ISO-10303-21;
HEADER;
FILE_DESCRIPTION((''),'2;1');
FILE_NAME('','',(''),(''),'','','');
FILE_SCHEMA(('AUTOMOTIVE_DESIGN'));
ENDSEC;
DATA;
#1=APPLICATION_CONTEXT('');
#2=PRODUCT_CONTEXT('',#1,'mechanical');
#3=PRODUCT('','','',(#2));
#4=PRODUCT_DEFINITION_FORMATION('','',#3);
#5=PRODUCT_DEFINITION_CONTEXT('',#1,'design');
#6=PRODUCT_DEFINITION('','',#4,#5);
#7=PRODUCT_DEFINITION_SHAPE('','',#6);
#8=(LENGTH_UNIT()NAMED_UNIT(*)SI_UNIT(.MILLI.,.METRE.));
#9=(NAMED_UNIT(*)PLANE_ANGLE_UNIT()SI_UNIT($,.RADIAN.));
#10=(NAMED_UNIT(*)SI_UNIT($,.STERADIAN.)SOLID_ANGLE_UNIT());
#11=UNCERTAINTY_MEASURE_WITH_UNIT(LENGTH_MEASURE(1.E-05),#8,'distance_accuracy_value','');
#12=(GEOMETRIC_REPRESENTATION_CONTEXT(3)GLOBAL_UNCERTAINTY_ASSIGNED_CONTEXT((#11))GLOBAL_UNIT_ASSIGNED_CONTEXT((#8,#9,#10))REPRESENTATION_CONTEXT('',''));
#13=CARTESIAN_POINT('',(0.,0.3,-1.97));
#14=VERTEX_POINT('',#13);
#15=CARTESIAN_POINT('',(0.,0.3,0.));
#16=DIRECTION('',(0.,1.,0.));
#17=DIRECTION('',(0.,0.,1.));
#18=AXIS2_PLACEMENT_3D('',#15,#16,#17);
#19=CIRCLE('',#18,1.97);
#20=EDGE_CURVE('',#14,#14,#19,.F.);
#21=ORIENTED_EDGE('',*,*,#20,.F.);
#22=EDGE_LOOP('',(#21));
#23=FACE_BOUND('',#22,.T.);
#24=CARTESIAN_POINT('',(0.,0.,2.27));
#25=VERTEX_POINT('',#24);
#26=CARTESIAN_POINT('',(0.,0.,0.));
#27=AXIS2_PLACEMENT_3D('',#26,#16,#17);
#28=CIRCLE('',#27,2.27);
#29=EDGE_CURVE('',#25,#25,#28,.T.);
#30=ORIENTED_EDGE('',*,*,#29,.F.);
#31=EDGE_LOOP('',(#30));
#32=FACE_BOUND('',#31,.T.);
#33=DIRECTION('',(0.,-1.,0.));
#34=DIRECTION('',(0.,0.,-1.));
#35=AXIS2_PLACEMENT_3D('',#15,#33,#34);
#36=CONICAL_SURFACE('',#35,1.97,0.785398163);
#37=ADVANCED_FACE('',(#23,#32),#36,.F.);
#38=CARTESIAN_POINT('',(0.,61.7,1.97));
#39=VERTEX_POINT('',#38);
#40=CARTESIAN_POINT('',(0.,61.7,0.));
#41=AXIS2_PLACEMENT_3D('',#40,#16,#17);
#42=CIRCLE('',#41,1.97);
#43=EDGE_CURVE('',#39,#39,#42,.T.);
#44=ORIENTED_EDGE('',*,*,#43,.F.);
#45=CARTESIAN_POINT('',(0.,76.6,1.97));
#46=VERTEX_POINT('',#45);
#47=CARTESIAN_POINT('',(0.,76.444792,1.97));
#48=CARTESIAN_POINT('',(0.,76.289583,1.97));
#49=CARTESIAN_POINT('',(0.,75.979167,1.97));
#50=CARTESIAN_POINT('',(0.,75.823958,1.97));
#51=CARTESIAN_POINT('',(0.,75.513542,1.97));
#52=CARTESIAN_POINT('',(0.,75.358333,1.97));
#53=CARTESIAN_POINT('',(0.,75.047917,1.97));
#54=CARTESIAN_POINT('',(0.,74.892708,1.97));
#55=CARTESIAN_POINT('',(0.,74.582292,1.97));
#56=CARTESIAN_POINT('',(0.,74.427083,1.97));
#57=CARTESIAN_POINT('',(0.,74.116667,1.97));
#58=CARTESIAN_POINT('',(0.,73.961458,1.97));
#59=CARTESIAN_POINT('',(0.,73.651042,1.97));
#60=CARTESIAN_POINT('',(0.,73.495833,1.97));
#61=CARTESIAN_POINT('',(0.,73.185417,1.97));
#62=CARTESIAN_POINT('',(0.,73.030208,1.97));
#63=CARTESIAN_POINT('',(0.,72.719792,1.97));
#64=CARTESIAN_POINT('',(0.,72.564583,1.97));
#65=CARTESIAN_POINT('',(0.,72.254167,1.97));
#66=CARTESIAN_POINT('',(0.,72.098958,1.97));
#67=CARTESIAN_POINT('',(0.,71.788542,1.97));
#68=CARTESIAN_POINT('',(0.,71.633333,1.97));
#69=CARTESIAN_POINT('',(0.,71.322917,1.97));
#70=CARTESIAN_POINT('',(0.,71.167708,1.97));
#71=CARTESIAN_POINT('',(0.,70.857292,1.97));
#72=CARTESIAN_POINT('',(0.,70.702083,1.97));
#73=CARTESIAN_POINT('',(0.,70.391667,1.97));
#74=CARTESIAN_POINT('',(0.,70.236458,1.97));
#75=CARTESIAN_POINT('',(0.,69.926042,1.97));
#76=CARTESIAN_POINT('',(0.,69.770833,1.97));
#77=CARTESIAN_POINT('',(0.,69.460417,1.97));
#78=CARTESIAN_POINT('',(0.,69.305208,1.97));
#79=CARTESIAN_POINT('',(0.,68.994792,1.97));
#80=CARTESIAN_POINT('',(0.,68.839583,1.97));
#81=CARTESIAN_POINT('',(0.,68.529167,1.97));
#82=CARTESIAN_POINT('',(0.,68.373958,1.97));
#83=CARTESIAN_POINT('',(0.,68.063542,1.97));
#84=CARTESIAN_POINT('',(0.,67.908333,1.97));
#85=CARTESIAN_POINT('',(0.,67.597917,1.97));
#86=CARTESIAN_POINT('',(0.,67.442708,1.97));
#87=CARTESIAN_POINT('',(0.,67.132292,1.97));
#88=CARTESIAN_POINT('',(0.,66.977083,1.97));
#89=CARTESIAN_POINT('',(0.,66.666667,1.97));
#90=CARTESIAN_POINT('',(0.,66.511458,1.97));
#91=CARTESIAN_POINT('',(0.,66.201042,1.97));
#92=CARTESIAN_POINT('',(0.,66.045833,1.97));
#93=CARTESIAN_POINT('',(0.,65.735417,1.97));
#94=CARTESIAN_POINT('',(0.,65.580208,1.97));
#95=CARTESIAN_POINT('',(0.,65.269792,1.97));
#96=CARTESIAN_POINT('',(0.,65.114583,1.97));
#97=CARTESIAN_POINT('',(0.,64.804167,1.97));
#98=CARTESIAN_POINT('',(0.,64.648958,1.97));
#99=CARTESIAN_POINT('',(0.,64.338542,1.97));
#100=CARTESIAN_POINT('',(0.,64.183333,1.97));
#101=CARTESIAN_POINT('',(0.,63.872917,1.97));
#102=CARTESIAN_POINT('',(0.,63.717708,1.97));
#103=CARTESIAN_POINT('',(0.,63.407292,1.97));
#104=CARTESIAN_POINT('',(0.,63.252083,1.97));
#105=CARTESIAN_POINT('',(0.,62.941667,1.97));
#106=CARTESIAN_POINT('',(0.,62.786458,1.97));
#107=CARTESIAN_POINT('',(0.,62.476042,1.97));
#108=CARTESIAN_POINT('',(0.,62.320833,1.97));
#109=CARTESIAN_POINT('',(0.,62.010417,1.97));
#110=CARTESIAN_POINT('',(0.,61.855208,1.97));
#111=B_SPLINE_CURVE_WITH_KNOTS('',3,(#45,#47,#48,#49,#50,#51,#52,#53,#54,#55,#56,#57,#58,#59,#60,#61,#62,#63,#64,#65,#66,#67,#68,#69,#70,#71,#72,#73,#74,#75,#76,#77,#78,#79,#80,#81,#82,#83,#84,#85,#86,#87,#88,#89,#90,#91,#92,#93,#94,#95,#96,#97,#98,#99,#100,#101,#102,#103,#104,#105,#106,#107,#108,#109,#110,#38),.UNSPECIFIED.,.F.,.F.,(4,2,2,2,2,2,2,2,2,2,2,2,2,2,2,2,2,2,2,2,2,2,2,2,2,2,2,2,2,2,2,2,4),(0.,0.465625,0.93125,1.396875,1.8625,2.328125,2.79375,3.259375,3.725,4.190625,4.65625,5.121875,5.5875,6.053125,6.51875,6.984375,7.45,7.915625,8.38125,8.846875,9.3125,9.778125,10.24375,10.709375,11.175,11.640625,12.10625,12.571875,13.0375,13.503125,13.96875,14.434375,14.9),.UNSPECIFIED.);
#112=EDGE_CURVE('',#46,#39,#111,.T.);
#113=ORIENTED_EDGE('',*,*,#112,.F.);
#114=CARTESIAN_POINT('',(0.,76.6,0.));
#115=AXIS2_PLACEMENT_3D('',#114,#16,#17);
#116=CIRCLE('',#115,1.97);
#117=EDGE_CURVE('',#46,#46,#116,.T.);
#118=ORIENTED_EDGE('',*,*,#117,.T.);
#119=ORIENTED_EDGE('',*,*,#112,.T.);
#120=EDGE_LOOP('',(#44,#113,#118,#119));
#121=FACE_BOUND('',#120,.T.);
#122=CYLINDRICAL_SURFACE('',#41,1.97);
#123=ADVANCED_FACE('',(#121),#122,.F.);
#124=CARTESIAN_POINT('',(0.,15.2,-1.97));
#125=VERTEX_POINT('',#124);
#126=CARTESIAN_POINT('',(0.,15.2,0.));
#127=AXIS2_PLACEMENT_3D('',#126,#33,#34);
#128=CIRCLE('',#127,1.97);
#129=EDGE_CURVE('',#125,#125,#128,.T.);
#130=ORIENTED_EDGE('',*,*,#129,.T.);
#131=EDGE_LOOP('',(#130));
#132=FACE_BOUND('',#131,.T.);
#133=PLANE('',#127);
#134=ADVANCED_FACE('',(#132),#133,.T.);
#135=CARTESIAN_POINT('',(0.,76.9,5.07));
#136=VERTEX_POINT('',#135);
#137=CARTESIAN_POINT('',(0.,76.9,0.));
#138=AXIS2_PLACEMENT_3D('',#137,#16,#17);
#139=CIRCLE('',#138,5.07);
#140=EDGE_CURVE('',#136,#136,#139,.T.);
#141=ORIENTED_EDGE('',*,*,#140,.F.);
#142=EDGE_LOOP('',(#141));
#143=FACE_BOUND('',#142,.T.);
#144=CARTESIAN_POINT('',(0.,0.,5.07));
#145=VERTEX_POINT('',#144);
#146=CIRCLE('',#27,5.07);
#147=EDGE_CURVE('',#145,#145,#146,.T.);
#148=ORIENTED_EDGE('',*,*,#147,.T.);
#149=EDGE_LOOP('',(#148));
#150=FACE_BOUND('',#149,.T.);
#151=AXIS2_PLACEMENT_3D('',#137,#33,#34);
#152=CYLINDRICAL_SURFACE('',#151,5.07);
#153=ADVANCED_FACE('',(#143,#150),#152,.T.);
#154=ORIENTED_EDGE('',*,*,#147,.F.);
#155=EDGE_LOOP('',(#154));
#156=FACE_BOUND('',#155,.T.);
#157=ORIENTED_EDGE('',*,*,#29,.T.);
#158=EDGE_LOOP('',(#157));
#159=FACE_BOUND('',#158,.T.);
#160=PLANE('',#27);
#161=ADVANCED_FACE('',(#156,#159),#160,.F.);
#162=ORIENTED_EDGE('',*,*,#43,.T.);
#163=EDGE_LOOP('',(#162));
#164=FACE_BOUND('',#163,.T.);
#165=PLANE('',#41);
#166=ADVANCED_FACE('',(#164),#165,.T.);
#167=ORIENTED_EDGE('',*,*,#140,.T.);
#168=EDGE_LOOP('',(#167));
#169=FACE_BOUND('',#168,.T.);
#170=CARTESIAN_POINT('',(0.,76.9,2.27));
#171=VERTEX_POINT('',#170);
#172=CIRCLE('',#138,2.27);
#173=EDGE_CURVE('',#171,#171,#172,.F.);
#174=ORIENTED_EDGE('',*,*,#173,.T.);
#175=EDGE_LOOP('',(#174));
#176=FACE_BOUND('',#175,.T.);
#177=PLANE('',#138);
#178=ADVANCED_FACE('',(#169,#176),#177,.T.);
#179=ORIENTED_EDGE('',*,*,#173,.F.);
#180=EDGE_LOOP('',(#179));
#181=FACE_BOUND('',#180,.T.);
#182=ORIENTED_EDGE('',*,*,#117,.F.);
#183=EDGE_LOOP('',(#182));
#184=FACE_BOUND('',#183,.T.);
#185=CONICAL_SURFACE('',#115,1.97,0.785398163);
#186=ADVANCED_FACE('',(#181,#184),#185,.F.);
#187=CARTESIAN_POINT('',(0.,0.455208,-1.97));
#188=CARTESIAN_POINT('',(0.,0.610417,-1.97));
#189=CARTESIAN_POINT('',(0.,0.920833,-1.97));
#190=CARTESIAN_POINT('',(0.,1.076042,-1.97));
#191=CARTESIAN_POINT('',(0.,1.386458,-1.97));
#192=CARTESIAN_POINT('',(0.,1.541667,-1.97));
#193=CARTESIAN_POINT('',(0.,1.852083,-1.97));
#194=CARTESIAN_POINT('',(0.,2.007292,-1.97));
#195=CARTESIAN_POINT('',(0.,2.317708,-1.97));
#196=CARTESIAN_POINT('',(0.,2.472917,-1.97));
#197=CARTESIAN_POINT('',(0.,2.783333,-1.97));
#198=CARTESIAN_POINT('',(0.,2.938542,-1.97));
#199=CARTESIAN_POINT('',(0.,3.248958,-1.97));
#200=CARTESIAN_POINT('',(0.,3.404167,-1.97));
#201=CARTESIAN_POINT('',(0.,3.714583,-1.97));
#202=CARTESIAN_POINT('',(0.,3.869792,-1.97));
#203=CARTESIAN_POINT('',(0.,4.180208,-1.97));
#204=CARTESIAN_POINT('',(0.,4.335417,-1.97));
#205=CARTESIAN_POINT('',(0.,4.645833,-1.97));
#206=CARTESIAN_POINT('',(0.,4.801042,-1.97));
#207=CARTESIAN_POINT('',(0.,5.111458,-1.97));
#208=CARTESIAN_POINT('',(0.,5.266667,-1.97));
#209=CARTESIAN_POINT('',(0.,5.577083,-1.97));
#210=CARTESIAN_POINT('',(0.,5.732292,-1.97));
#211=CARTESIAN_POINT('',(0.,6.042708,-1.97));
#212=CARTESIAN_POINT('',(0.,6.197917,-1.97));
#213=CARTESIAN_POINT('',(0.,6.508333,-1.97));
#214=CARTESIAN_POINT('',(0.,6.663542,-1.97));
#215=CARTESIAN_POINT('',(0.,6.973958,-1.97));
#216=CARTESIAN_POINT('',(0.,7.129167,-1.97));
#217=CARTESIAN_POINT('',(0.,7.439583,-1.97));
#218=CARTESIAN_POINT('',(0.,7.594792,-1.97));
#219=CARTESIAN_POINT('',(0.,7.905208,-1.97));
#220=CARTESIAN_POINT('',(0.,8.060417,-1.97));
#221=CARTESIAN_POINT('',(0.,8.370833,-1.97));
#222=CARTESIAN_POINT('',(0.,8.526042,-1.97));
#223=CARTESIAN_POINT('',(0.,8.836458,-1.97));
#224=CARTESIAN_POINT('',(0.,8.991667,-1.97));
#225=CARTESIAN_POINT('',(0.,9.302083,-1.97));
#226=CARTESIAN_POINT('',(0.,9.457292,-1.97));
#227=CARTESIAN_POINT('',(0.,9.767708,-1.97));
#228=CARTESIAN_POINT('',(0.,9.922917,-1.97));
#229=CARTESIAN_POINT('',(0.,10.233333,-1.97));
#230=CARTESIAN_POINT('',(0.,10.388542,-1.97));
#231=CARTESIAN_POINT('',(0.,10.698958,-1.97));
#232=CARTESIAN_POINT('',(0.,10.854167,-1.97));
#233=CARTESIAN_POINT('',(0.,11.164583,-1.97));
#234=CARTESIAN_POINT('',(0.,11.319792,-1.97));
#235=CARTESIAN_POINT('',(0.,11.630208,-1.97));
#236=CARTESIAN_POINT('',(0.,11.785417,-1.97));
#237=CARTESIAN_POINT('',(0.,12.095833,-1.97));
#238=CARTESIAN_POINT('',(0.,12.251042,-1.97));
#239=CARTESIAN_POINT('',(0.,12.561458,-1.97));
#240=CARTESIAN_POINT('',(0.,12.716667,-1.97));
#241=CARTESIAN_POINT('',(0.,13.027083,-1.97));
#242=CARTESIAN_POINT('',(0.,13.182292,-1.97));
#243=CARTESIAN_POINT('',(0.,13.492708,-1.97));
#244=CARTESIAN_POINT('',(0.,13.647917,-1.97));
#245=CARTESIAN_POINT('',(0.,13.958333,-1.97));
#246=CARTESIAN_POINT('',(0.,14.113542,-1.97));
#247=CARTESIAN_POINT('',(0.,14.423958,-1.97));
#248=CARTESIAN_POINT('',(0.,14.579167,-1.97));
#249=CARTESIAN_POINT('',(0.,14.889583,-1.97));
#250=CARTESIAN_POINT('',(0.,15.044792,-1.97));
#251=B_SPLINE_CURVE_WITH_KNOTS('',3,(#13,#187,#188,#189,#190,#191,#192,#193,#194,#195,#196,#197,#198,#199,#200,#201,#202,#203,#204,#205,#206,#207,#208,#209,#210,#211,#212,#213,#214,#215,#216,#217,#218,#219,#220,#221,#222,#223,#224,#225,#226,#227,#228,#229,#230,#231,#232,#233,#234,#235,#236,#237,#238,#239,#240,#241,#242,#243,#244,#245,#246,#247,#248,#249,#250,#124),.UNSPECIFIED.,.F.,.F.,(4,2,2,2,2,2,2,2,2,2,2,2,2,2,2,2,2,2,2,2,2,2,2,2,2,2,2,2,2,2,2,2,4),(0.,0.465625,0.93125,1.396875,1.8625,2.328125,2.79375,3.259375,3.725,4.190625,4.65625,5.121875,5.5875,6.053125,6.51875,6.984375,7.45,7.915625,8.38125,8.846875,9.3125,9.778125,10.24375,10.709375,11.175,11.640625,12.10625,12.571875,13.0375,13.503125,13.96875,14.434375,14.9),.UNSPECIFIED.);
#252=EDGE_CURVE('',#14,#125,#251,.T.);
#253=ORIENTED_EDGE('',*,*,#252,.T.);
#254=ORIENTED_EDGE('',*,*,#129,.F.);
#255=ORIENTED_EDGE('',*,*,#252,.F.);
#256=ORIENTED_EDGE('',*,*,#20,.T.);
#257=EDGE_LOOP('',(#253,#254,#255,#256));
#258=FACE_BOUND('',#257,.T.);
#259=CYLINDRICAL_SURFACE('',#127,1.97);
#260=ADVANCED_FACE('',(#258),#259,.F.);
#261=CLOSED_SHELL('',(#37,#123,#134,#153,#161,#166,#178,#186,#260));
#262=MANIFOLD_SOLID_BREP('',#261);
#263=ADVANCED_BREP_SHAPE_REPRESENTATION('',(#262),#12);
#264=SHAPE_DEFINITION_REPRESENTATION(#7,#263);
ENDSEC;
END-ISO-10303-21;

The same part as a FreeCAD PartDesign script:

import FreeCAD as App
import Part
import Sketcher
from FreeCAD import Vector


def edges_at(feature, points):
    """Names of the edges that pass closest to the given points."""
    edges = feature.Shape.Edges
    near = lambda p: min(range(len(edges)), key=lambda i: edges[i].distToShape(Part.Vertex(*p))[0])
    return sorted({f"Edge{near(p) + 1}" for p in points})

doc = App.newDocument("Part")
body = doc.addObject("PartDesign::Body", "Body")

sketch1 = body.newObject("Sketcher::SketchObject", "Sketch")
sketch1.AttachmentSupport = (doc.getObject("XZ_Plane"), [""])
sketch1.MapMode = "FlatFace"
sketch1.addGeometry(Part.Circle(Vector(0, 0, 0), Vector(0, 0, 1), 5.07), False)
sketch1.addConstraint([
    Sketcher.Constraint("Coincident", 0, 3, -1, 1),
    Sketcher.Constraint("Diameter", 0, 10.14),
])
pad1 = body.newObject("PartDesign::Pad", "Pad")
pad1.Profile = sketch1
pad1.Length = 76.9
pad1.Reversed = True

sketch2 = body.newObject("Sketcher::SketchObject", "Sketch001")
sketch2.AttachmentSupport = (doc.getObject("XZ_Plane"), [""])
sketch2.MapMode = "FlatFace"
sketch2.AttachmentOffset = App.Placement(Vector(0, 0, -76.9), App.Rotation())
sketch2.addGeometry(Part.Circle(Vector(0, 0, 0), Vector(0, 0, 1), 1.97), False)
sketch2.addConstraint([
    Sketcher.Constraint("Coincident", 0, 3, -1, 1),
    Sketcher.Constraint("Diameter", 0, 3.94),
])
pocket1 = body.newObject("PartDesign::Pocket", "Pocket")
pocket1.Profile = sketch2
pocket1.Length = 15.2
pocket1.Reversed = True
doc.recompute()

chamfer = body.newObject("PartDesign::Chamfer", "Chamfer")
chamfer.Base = (pocket1, edges_at(pocket1, [(0, 76.9, -1.97)]))
chamfer.Size = 0.3

sketch3 = body.newObject("Sketcher::SketchObject", "Sketch002")
sketch3.AttachmentSupport = (doc.getObject("XZ_Plane"), [""])
sketch3.MapMode = "FlatFace"
sketch3.AttachmentOffset = App.Placement(Vector(0, 0, -15.2), App.Rotation())
sketch3.addGeometry(Part.Circle(Vector(0, 0, 0), Vector(0, 0, 1), 1.97), False)
sketch3.addConstraint([
    Sketcher.Constraint("Coincident", 0, 3, -1, 1),
    Sketcher.Constraint("Diameter", 0, 3.94),
])
pocket2 = body.newObject("PartDesign::Pocket", "Pocket001")
pocket2.Profile = sketch3
pocket2.Length = 15.2
pocket2.Reversed = True
doc.recompute()

chamfer2 = body.newObject("PartDesign::Chamfer", "Chamfer001")
chamfer2.Base = (pocket2, edges_at(pocket2, [(0, 0, -1.97)]))
chamfer2.Size = 0.3

doc.recompute()
